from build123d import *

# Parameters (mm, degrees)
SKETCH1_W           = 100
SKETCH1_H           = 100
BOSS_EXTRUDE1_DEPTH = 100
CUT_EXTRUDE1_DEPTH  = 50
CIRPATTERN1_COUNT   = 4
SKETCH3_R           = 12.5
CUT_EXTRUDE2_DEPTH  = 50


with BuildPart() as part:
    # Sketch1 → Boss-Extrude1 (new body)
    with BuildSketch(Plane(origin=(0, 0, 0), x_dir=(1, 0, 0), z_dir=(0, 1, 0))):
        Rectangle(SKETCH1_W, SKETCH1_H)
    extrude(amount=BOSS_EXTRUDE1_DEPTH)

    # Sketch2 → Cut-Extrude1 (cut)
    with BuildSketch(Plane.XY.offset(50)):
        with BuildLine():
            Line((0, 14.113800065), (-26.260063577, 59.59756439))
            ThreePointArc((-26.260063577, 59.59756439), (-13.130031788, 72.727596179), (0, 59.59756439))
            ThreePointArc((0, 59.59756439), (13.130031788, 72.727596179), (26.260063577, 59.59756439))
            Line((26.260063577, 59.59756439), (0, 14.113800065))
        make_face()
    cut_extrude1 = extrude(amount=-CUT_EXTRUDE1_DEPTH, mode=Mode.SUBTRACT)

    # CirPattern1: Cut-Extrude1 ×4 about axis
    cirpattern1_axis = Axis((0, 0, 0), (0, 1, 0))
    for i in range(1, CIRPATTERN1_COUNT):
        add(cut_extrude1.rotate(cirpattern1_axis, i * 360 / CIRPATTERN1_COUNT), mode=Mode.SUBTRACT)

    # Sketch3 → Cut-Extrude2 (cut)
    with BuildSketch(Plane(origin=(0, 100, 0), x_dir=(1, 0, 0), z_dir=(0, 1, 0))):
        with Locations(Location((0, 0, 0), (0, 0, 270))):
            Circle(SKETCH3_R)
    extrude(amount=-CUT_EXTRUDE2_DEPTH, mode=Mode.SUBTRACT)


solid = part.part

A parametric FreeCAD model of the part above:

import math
import FreeCAD as App
import Part
import Sketcher
from FreeCAD import Vector
Q = App.Units.Quantity

doc = App.newDocument("Part")
params = doc.addObject("Spreadsheet::Sheet", "Params")
for row, (alias, value) in enumerate([
    ("sketch1_width", "100 mm"),
    ("pad1_length", "100 mm"),
    ("pocket1_length", "50 mm"),
    ("sketch3_diameter", "25 mm"),
    ("pocket2_length", "50 mm"),
], start=1):
    params.set(f"A{row}", alias)
    params.set(f"B{row}", "=" + value)
    params.setAlias(f"B{row}", alias)

body = doc.addObject("PartDesign::Body", "Body")

# Sketch on XZ plane
sketch1 = body.newObject("Sketcher::SketchObject", "Sketch")
sketch1.AttachmentSupport = (doc.getObject("XZ_Plane"), [""])
sketch1.MapMode = "FlatFace"
sketch1.addGeometry([
    Part.LineSegment(Vector(-50, -50, 0), Vector(-50, 50, 0)),
    Part.LineSegment(Vector(-50, 50, 0), Vector(50, 50, 0)),
    Part.LineSegment(Vector(50, 50, 0), Vector(50, -50, 0)),
    Part.LineSegment(Vector(50, -50, 0), Vector(-50, -50, 0)),
], False)
sketch1.addConstraint([
    Sketcher.Constraint("Coincident", 0, 2, 1, 1),
    Sketcher.Constraint("Coincident", 1, 2, 2, 1),
    Sketcher.Constraint("Coincident", 2, 2, 3, 1),
    Sketcher.Constraint("Coincident", 3, 2, 0, 1),
    Sketcher.Constraint("Vertical", 0),
    Sketcher.Constraint("Horizontal", 1),
    Sketcher.Constraint("Vertical", 2),
    Sketcher.Constraint("Horizontal", 3),
    Sketcher.Constraint("Symmetric", 0, 2, 2, 2, -1, 1),
    Sketcher.Constraint("Equal", 3, 0),
    Sketcher.Constraint("DistanceX", 1, 1, 1, 2, Q("100 mm")),
])
sketch1.setExpression("Constraints[10]", "Params.sketch1_width")
pad1 = body.newObject("PartDesign::Pad", "Pad")
pad1.Profile = sketch1
pad1.setExpression("Length", "Params.pad1_length")
pad1.Reversed = True

# Sketch on XY plane
sketch2 = body.newObject("Sketcher::SketchObject", "Sketch001")
sketch2.AttachmentSupport = (doc.getObject("XY_Plane"), [""])
sketch2.MapMode = "FlatFace"
sketch2.AttachmentOffset = App.Placement(Vector(0, 0, 50), App.Rotation())
sketch2.addGeometry([
    Part.LineSegment(Vector(-26, 60, 0), Vector(0, 14, 0)),
    Part.LineSegment(Vector(0, 14, 0), Vector(26, 60, 0)),
    Part.ArcOfCircle(Part.Circle(Vector(13, 60, 0), Vector(0, 0, 1), 13), math.radians(0), math.radians(180)),
    Part.ArcOfCircle(Part.Circle(Vector(-13, 60, 0), Vector(0, 0, 1), 13), math.radians(0), math.radians(180)),
], False)
sketch2.addConstraint([
    Sketcher.Constraint("Coincident", 0, 2, 1, 1),
    Sketcher.Constraint("Coincident", 1, 2, 2, 1),
    Sketcher.Constraint("Tangent", 2, 2, 3, 1),
    Sketcher.Constraint("Coincident", 3, 2, 0, 1),
    Sketcher.Constraint("Equal", 2, 3),
    Sketcher.Constraint("Symmetric", 2, 3, 3, 3, -2),
    Sketcher.Constraint("PointOnObject", 0, 2, -2),
    Sketcher.Constraint("Horizontal", 3, 3, 1, 2),
    Sketcher.Constraint("Horizontal", 2, 2, 3, 2),
    Sketcher.Constraint("Angle", 0, Q("-60 deg")),
    Sketcher.Constraint("Radius", 2, Q("13.130032 mm")),
    Sketcher.Constraint("DistanceY", -1, 1, 0, 2, Q("14.1138 mm")),
])
pocket1 = body.newObject("PartDesign::Pocket", "Pocket")
pocket1.Profile = sketch2
pocket1.setExpression("Length", "Params.pocket1_length")
doc.recompute()

polarpattern = body.newObject("PartDesign::PolarPattern", "PolarPattern")
polarpattern.Originals = [pocket1]
polarpattern.Axis = (doc.getObject("Y_Axis"), [""])
polarpattern.Angle = 360
polarpattern.Occurrences = 4
body.Tip = polarpattern

# Sketch on XZ plane
sketch3 = body.newObject("Sketcher::SketchObject", "Sketch002")
sketch3.AttachmentSupport = (doc.getObject("XZ_Plane"), [""])
sketch3.MapMode = "FlatFace"
sketch3.AttachmentOffset = App.Placement(Vector(0, 0, -100), App.Rotation())
sketch3.addGeometry(Part.Circle(Vector(0, 0, 0), Vector(0, 0, 1), 12), False)
sketch3.addConstraint([
    Sketcher.Constraint("Coincident", 0, 3, -1, 1),
    Sketcher.Constraint("Diameter", 0, Q("25 mm")),
])
sketch3.setExpression("Constraints[1]", "Params.sketch3_diameter")
pocket2 = body.newObject("PartDesign::Pocket", "Pocket001")
pocket2.Profile = sketch3
pocket2.setExpression("Length", "Params.pocket2_length")
pocket2.Reversed = True

doc.recompute()
